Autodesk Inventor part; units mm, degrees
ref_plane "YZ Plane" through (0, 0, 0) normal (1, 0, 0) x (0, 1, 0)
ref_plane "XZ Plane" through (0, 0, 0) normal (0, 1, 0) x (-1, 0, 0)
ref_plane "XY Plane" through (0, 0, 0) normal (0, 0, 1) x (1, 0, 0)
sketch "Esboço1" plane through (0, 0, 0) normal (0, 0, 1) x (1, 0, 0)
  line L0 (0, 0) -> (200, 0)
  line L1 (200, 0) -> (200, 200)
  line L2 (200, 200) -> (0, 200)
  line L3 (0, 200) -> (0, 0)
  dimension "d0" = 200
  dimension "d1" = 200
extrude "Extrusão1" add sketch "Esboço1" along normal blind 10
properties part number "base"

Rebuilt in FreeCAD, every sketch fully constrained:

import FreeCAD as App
import Part
import Sketcher

V = App.Vector


def add_polygon(sketch, points):
    """Adds a closed chain of lines whose ends are joined by coincident constraints."""
    first, n = sketch.GeometryCount, len(points)
    for a, b in zip(points, points[1:] + points[:1]):
        sketch.addGeometry(Part.LineSegment(App.Vector(*a, 0), App.Vector(*b, 0)), False)
    for i in range(n):
        sketch.addConstraint(Sketcher.Constraint("Coincident", first + i, 2, first + (i + 1) % n, 1))

doc = App.newDocument("Part")
params = doc.addObject("Spreadsheet::Sheet", "Params")
for row, (alias, value) in enumerate([
    ("sketch1_width", "200 mm"),
    ("pad1_length", "10 mm"),
], start=1):
    params.set(f"A{row}", alias)
    params.set(f"B{row}", "=" + value)
    params.setAlias(f"B{row}", alias)

body = doc.addObject("PartDesign::Body", "Body")

sketch1 = body.newObject("Sketcher::SketchObject", "Sketch")
sketch1.AttachmentSupport = (doc.getObject("XY_Plane"), [""])
sketch1.MapMode = "FlatFace"
add_polygon(sketch1, [(0, 200), (0, 0), (200, 0), (200, 200)])
sketch1.addConstraint([
    Sketcher.Constraint("Vertical", 0),
    Sketcher.Constraint("Horizontal", 1),
    Sketcher.Constraint("Vertical", 2),
    Sketcher.Constraint("Horizontal", 3),
    Sketcher.Constraint("Coincident", 0, 2, -1, 1),
    Sketcher.Constraint("Equal", 3, 0),
    Sketcher.Constraint("DistanceX", 1, 1, 1, 2, 200.0),
])
sketch1.setExpression("Constraints[10]", "Params.sketch1_width")
pad1 = body.newObject("PartDesign::Pad", "Pad")
pad1.Profile = sketch1
pad1.setExpression("Length", "Params.pad1_length")

doc.recompute()
